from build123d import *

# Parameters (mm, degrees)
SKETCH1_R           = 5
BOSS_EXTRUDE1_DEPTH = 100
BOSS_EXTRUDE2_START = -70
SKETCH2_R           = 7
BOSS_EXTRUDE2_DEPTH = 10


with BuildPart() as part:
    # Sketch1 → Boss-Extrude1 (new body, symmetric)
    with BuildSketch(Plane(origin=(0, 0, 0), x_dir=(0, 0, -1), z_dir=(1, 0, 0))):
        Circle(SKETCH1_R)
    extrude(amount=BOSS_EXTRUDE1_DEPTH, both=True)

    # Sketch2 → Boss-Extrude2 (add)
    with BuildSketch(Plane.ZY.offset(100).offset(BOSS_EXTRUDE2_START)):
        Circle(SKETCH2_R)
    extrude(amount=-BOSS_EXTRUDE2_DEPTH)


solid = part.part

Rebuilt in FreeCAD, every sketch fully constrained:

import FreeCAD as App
import Part
import Sketcher

V = App.Vector
Q = App.Units.Quantity

doc = App.newDocument("Part")
params = doc.addObject("Spreadsheet::Sheet", "Params")
for row, (alias, value) in enumerate([
    ("sketch1_diameter", "10 mm"),
    ("pad1_length", "200 mm"),
    ("sketch2_diameter", "14 mm"),
    ("pad2_length", "10 mm"),
], start=1):
    params.set(f"A{row}", alias)
    params.set(f"B{row}", "=" + value)
    params.setAlias(f"B{row}", alias)

body = doc.addObject("PartDesign::Body", "Body")

# Sketch on YZ plane
sketch1 = body.newObject("Sketcher::SketchObject", "Sketch")
sketch1.AttachmentSupport = (doc.getObject("YZ_Plane"), [""])
sketch1.MapMode = "FlatFace"
sketch1.addGeometry(Part.Circle(V(0, 0, 0), V(0, 0, 1), 5), False)
sketch1.addConstraint(Sketcher.Constraint("Coincident", 0, 3, -1, 1))
sketch1.addConstraint(Sketcher.Constraint("Diameter", 0, Q("10 mm")))
sketch1.setExpression("Constraints[1]", "Params.sketch1_diameter")
pad1 = body.newObject("PartDesign::Pad", "Pad")
pad1.Profile = sketch1
pad1.setExpression("Length", "Params.pad1_length")
pad1.Midplane = True

# Sketch on YZ plane
sketch2 = body.newObject("Sketcher::SketchObject", "Sketch001")
sketch2.AttachmentSupport = (doc.getObject("YZ_Plane"), [""])
sketch2.MapMode = "FlatFace"
sketch2.AttachmentOffset = App.Placement(V(0, 0, -30), App.Rotation())
sketch2.addGeometry(Part.Circle(V(0, 0, 0), V(0, 0, 1), 7), False)
sketch2.addConstraint(Sketcher.Constraint("Coincident", 0, 3, -1, 1))
sketch2.addConstraint(Sketcher.Constraint("Diameter", 0, Q("14 mm")))
sketch2.setExpression("Constraints[1]", "Params.sketch2_diameter")
pad2 = body.newObject("PartDesign::Pad", "Pad001")
pad2.Profile = sketch2
pad2.setExpression("Length", "Params.pad2_length")

doc.recompute()
